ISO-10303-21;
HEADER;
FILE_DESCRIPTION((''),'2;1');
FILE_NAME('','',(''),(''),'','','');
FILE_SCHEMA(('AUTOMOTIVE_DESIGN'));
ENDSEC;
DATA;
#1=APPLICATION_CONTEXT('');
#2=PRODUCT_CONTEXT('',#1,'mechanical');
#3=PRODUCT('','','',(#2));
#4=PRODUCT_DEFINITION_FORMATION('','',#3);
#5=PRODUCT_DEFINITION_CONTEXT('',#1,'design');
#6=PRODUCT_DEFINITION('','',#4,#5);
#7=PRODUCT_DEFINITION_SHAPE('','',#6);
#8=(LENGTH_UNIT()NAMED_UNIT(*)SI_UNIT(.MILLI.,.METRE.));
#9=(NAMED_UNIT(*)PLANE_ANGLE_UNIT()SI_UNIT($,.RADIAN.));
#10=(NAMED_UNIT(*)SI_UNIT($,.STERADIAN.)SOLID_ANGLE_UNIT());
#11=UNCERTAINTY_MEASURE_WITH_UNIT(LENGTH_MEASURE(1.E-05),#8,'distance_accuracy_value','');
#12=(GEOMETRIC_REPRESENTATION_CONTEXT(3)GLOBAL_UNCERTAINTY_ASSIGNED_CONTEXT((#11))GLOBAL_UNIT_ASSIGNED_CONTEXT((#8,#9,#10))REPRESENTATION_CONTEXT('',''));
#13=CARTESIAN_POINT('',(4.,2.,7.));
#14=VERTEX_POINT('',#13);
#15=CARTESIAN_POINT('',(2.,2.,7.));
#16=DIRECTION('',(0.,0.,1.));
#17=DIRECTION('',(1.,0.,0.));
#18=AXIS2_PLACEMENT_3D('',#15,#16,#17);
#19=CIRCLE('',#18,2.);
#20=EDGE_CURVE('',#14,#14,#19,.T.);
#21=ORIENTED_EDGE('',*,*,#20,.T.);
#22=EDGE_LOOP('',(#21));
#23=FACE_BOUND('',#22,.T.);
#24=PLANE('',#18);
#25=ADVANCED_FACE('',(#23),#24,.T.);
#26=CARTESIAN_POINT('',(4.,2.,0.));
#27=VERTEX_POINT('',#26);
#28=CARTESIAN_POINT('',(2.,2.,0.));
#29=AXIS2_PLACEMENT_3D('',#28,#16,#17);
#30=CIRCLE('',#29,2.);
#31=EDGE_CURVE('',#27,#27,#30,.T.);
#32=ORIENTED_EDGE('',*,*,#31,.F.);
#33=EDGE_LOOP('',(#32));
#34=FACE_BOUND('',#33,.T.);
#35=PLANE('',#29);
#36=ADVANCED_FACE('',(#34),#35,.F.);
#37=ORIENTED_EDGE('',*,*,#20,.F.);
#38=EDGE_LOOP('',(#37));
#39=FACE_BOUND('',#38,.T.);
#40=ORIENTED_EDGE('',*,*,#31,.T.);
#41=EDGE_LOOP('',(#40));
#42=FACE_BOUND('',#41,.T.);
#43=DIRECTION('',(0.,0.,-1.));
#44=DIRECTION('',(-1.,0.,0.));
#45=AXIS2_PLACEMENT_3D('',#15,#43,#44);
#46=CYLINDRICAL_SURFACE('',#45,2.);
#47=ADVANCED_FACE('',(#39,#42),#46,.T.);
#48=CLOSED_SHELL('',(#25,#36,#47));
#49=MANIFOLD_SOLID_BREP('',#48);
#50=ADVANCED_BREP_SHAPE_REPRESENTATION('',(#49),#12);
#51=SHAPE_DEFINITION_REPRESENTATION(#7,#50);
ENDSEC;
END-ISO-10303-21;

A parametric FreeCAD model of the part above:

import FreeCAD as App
import Part
import Sketcher
Q = App.Units.Quantity

doc = App.newDocument("Part")
body = doc.addObject("PartDesign::Body", "Body")

# Sketch on XY plane
sketch1 = doc.addObject("Sketcher::SketchObject", "Sketch")
body.addObject(sketch1)
sketch1.AttachmentSupport = (doc.XY_Plane, [""])
sketch1.MapMode = "FlatFace"
sketch1.addGeometry(Part.Circle(App.Vector(2, 2, 0), App.Vector(0, 0, 1), 2), False)
sketch1.addConstraint(Sketcher.Constraint("Diameter", 0, Q("4 mm")))
sketch1.addConstraint(Sketcher.Constraint("DistanceX", -1, 1, 0, 3, Q("2 mm")))
sketch1.addConstraint(Sketcher.Constraint("DistanceY", -1, 1, 0, 3, Q("2 mm")))
pad1 = doc.addObject("PartDesign::Pad", "Pad")
body.addObject(pad1)
pad1.Profile = sketch1
pad1.Length = 7

doc.recompute()
